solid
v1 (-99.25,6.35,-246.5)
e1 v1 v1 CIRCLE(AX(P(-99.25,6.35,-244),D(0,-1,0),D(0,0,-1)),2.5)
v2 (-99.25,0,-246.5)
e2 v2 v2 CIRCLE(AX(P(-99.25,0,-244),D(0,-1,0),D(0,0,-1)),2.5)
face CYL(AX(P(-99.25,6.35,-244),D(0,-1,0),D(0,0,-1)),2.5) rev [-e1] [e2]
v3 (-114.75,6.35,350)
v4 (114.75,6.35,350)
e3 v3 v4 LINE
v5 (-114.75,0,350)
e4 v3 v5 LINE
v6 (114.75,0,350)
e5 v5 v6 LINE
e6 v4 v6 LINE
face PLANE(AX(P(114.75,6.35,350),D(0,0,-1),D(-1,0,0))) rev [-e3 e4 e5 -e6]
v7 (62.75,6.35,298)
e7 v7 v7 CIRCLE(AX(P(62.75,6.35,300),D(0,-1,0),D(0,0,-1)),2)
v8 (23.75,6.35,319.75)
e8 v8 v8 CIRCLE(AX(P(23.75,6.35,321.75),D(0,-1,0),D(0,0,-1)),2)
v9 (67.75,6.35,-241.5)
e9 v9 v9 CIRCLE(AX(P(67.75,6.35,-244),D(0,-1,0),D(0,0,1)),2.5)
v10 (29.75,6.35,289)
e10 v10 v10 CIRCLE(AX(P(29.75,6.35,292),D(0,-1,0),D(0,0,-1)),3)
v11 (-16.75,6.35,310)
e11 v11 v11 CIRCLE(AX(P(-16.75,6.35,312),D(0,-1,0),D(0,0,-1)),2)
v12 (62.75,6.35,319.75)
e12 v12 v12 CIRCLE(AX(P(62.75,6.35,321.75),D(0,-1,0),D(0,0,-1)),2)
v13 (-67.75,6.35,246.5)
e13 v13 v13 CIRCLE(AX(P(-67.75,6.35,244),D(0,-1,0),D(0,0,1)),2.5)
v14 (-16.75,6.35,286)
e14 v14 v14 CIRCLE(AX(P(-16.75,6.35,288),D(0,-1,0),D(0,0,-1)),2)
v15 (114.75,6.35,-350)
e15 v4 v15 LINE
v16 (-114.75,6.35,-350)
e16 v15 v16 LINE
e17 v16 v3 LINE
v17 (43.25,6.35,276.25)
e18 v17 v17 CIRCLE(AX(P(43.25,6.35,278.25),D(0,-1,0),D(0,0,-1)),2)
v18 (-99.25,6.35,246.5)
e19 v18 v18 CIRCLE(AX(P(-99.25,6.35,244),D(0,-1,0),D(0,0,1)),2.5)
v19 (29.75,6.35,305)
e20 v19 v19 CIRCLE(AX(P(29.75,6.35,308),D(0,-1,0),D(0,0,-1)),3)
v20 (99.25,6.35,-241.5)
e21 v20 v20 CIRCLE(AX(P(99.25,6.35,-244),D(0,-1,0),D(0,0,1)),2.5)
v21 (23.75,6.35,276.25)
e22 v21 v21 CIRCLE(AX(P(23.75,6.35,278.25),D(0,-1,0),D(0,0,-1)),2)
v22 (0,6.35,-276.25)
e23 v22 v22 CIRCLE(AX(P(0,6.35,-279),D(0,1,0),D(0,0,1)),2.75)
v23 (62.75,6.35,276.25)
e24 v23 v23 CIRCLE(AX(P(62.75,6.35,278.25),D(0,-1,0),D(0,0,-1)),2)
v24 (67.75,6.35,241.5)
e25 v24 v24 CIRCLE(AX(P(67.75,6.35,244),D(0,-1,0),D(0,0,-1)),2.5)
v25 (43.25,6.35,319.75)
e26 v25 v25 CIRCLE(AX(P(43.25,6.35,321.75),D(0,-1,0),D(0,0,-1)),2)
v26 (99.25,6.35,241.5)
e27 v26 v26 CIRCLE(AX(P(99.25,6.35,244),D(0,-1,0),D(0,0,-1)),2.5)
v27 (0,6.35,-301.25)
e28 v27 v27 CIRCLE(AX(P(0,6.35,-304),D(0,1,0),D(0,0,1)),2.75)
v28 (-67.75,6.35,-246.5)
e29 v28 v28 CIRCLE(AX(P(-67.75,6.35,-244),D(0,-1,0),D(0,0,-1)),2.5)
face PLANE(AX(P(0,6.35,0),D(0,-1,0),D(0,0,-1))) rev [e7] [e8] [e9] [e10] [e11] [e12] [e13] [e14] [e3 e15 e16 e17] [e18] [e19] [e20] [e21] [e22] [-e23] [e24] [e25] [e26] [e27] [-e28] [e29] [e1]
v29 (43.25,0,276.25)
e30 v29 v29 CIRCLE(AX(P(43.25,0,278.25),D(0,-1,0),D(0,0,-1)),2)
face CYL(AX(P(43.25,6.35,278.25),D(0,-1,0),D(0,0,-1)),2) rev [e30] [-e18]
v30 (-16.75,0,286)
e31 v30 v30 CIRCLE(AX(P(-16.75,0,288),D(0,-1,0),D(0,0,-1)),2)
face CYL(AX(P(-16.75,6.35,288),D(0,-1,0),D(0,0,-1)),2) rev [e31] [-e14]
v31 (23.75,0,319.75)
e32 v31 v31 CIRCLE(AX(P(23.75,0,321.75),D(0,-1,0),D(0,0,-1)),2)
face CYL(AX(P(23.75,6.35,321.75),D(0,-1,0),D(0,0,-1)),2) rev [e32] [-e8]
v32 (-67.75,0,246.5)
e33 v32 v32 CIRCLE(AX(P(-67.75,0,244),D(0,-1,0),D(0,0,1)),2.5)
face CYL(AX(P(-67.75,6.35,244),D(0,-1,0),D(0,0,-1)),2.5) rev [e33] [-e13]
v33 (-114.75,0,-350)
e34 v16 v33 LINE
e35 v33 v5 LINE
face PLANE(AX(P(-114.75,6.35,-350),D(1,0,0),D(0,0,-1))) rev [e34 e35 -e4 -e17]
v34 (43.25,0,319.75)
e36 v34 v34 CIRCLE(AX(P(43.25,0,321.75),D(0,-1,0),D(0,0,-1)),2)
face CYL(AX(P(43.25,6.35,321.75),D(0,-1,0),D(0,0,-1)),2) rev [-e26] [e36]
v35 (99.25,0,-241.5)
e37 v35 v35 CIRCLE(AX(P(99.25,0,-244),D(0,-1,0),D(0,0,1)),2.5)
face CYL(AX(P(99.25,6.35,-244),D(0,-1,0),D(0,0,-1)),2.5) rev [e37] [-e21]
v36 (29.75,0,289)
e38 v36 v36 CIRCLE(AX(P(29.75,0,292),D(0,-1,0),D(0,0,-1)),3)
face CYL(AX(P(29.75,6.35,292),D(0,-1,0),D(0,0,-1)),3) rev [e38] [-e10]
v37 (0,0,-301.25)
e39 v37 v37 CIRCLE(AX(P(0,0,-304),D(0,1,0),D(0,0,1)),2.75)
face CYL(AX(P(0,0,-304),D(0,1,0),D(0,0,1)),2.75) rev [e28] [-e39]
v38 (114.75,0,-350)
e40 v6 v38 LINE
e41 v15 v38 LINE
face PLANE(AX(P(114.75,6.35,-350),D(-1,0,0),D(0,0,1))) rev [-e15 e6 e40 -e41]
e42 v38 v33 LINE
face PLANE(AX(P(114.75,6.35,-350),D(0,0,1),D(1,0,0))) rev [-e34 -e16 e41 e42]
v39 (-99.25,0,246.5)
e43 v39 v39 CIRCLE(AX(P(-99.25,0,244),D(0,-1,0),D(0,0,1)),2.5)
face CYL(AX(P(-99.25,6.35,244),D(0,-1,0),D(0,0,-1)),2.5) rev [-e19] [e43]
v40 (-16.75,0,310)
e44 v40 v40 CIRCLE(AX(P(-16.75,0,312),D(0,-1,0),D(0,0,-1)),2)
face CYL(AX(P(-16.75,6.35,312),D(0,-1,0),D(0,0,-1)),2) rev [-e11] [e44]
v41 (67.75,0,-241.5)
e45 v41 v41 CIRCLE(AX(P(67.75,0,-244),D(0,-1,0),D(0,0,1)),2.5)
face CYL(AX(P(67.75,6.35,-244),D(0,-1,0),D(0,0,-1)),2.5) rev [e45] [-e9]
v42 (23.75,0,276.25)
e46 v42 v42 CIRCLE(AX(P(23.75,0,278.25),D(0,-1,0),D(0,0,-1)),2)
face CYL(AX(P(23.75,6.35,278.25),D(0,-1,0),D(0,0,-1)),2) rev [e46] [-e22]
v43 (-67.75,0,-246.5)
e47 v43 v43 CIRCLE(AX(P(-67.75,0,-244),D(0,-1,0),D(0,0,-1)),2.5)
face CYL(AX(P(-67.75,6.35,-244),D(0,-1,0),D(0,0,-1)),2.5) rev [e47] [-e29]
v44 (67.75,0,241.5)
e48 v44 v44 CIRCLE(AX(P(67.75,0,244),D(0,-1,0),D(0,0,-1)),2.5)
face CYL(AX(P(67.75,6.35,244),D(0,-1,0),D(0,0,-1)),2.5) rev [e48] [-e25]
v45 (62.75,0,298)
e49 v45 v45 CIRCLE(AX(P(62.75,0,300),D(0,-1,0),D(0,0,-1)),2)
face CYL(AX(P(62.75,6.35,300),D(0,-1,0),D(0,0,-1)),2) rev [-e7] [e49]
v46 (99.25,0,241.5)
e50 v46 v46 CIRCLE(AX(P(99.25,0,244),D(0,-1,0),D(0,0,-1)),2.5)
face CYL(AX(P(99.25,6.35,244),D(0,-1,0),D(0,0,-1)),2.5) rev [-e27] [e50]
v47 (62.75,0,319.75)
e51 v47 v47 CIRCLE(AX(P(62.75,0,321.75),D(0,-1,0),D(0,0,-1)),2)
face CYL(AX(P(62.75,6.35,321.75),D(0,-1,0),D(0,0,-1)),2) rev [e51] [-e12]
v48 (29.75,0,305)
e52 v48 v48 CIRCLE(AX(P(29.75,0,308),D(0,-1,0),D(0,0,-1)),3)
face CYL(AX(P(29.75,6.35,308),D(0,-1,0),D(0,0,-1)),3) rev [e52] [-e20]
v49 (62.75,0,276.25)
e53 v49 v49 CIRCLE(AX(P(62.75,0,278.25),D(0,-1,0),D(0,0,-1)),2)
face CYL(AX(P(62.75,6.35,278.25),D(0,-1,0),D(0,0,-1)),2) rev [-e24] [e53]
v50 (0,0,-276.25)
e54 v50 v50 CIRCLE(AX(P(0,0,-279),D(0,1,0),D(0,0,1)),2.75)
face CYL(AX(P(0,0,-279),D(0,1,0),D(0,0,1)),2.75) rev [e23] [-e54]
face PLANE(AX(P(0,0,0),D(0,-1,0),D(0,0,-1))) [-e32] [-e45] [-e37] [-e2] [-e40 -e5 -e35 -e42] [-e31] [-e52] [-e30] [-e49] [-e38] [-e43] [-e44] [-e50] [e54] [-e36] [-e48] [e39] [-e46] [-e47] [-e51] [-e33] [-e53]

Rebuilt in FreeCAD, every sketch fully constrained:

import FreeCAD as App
import Part
import Sketcher
Q = App.Units.Quantity

doc = App.newDocument("Part")
params = doc.addObject("Spreadsheet::Sheet", "Params")
for row, (alias, value) in enumerate([
    ("sketch1_height", "700 mm"),
    ("sketch1_width", "229.5 mm"),
    ("pad1_length", "6.35 mm"),
    ("sketch2_diameter", "4 mm"),
    ("sketch2_diameter2", "6 mm"),
    ("sketch2_diameter3", "5 mm"),
    ("sketch3_diameter", "5.5 mm"),
], start=1):
    params.set(f"A{row}", alias)
    params.set(f"B{row}", "=" + value)
    params.setAlias(f"B{row}", alias)

body = doc.addObject("PartDesign::Body", "Body")

# Sketch on XZ plane
sketch1 = body.newObject("Sketcher::SketchObject", "Sketch")
sketch1.AttachmentSupport = (doc.getObject("XZ_Plane"), [""])
sketch1.MapMode = "FlatFace"
sketch1.addGeometry([
    Part.LineSegment(App.Vector(-114.75, -350, 0), App.Vector(-114.75, 350, 0)),
    Part.LineSegment(App.Vector(-114.75, 350, 0), App.Vector(114.75, 350, 0)),
    Part.LineSegment(App.Vector(114.75, 350, 0), App.Vector(114.75, -350, 0)),
    Part.LineSegment(App.Vector(114.75, -350, 0), App.Vector(-114.75, -350, 0)),
], False)
sketch1.addConstraint([
    Sketcher.Constraint("Coincident", 0, 2, 1, 1),
    Sketcher.Constraint("Coincident", 1, 2, 2, 1),
    Sketcher.Constraint("Coincident", 2, 2, 3, 1),
    Sketcher.Constraint("Coincident", 3, 2, 0, 1),
    Sketcher.Constraint("Vertical", 0),
    Sketcher.Constraint("Horizontal", 1),
    Sketcher.Constraint("Vertical", 2),
    Sketcher.Constraint("Horizontal", 3),
    Sketcher.Constraint("Symmetric", 0, 2, 2, 2, -1, 1),
    Sketcher.Constraint("DistanceY", 0, 1, 0, 2, Q("700 mm")),
    Sketcher.Constraint("DistanceX", 1, 1, 1, 2, Q("229.5 mm")),
])
sketch1.setExpression("Constraints[9]", "Params.sketch1_height")
sketch1.setExpression("Constraints[10]", "Params.sketch1_width")
pad1 = body.newObject("PartDesign::Pad", "Pad")
pad1.Profile = sketch1
pad1.setExpression("Length", "Params.pad1_length")
pad1.Reversed = True

# Sketch on XZ plane
sketch2 = body.newObject("Sketcher::SketchObject", "Sketch001")
sketch2.AttachmentSupport = (doc.getObject("XZ_Plane"), [""])
sketch2.MapMode = "FlatFace"
sketch2.addGeometry([
    Part.Circle(App.Vector(-16.75, 312, 0), App.Vector(0, 0, 1), 2),  # 0
    Part.Circle(App.Vector(-16.75, 288, 0), App.Vector(0, 0, 1), 2),  # 1
    Part.Circle(App.Vector(23.75, 321.75, 0), App.Vector(0, 0, 1), 2),  # 2
    Part.Circle(App.Vector(23.75, 278.25, 0), App.Vector(0, 0, 1), 2),  # 3
    Part.Circle(App.Vector(43.25, 278.25, 0), App.Vector(0, 0, 1), 2),  # 4
    Part.Circle(App.Vector(43.25, 321.75, 0), App.Vector(0, 0, 1), 2),  # 5
    Part.Circle(App.Vector(62.75, 321.75, 0), App.Vector(0, 0, 1), 2),  # 6
    Part.Circle(App.Vector(62.75, 300, 0), App.Vector(0, 0, 1), 2),  # 7
    Part.Circle(App.Vector(62.75, 278.25, 0), App.Vector(0, 0, 1), 2),  # 8
    Part.Circle(App.Vector(29.75, 292, 0), App.Vector(0, 0, 1), 3),  # 9
    Part.Circle(App.Vector(29.75, 308, 0), App.Vector(0, 0, 1), 3),  # 10
    Part.Circle(App.Vector(67.75, 244, 0), App.Vector(0, 0, 1), 2.5),  # 11
    Part.Circle(App.Vector(99.25, 244, 0), App.Vector(0, 0, 1), 2.5),  # 12
    Part.Circle(App.Vector(67.75, -244, 0), App.Vector(0, 0, 1), 2.5),  # 13
    Part.Circle(App.Vector(99.25, -244, 0), App.Vector(0, 0, 1), 2.5),  # 14
    Part.Circle(App.Vector(-99.25, -244, 0), App.Vector(0, 0, 1), 2.5),  # 15
    Part.Circle(App.Vector(-67.75, -244, 0), App.Vector(0, 0, 1), 2.5),  # 16
    Part.Circle(App.Vector(-99.25, 244, 0), App.Vector(0, 0, 1), 2.5),  # 17
    Part.Circle(App.Vector(-67.75, 244, 0), App.Vector(0, 0, 1), 2.5),  # 18
], False)
sketch2.addConstraint([
    Sketcher.Constraint("Equal", 0, 1),
    Sketcher.Constraint("Equal", 1, 2),
    Sketcher.Constraint("Equal", 2, 3),
    Sketcher.Constraint("Equal", 3, 4),
    Sketcher.Constraint("Equal", 4, 5),
    Sketcher.Constraint("Equal", 5, 6),
    Sketcher.Constraint("Equal", 6, 7),
    Sketcher.Constraint("Equal", 7, 8),
    Sketcher.Constraint("Equal", 9, 10),
    Sketcher.Constraint("Equal", 11, 12),
    Sketcher.Constraint("Equal", 12, 13),
    Sketcher.Constraint("Equal", 13, 14),
    Sketcher.Constraint("Equal", 14, 15),
    Sketcher.Constraint("Equal", 15, 16),
    Sketcher.Constraint("Equal", 16, 17),
    Sketcher.Constraint("Equal", 17, 18),
    Sketcher.Constraint("Symmetric", 12, 3, 15, 3, -1, 1),
    Sketcher.Constraint("Symmetric", 11, 3, 16, 3, -1, 1),
    Sketcher.Constraint("Symmetric", 14, 3, 17, 3, -1, 1),
    Sketcher.Constraint("Symmetric", 13, 3, 18, 3, -1, 1),
    Sketcher.Constraint("Symmetric", 14, 3, 15, 3, -2),
    Sketcher.Constraint("Symmetric", 13, 3, 16, 3, -2),
    Sketcher.Constraint("Horizontal", 3, 3, 4, 3),
    Sketcher.Constraint("Horizontal", 2, 3, 5, 3),
    Sketcher.Constraint("Horizontal", 5, 3, 6, 3),
    Sketcher.Constraint("Horizontal", 4, 3, 8, 3),
    Sketcher.Constraint("Horizontal", 11, 3, 12, 3),
    Sketcher.Constraint("Vertical", 0, 3, 1, 3),
    Sketcher.Constraint("Vertical", 2, 3, 3, 3),
    Sketcher.Constraint("Vertical", 4, 3, 5, 3),
    Sketcher.Constraint("Vertical", 6, 3, 7, 3),
    Sketcher.Constraint("Vertical", 7, 3, 8, 3),
    Sketcher.Constraint("Vertical", 9, 3, 10, 3),
    Sketcher.Constraint("Diameter", 0, Q("4 mm")),
    Sketcher.Constraint("Diameter", 9, Q("6 mm")),
    Sketcher.Constraint("Diameter", 11, Q("5 mm")),
    Sketcher.Constraint("DistanceY", -1, 1, 0, 3, Q("312 mm")),
    Sketcher.Constraint("DistanceY", -1, 1, 1, 3, Q("288 mm")),
    Sketcher.Constraint("DistanceY", -1, 1, 7, 3, Q("300 mm")),
    Sketcher.Constraint("DistanceY", -1, 1, 9, 3, Q("292 mm")),
    Sketcher.Constraint("DistanceY", -1, 1, 10, 3, Q("308 mm")),
    Sketcher.Constraint("DistanceY", -1, 1, 11, 3, Q("244 mm")),
    Sketcher.Constraint("DistanceX", 1, 3, 4, 3, Q("60 mm")),
    Sketcher.Constraint("DistanceX", 2, 3, 6, 3, Q("39 mm")),
    Sketcher.Constraint("DistanceX", 3, 3, 9, 3, Q("6 mm")),
    Sketcher.Constraint("DistanceX", 8, 3, 11, 3, Q("5 mm")),
    Sketcher.Constraint("DistanceX", 4, 3, 12, 3, Q("56 mm")),
    Sketcher.Constraint("DistanceX", 15, 3, 13, 3, Q("167 mm")),
    Sketcher.Constraint("DistanceX", 0, 3, 2, 3, Q("40.5 mm")),
    Sketcher.Constraint("DistanceY", 3, 3, 2, 3, Q("43.5 mm")),
    Sketcher.Constraint("DistanceY", -1, 1, 2, 3, Q("321.75 mm")),
])
sketch2.setExpression("Constraints[33]", "Params.sketch2_diameter")
sketch2.setExpression("Constraints[34]", "Params.sketch2_diameter2")
sketch2.setExpression("Constraints[35]", "Params.sketch2_diameter3")
pocket1 = body.newObject("PartDesign::Pocket", "Pocket")
pocket1.Profile = sketch2
pocket1.Type = "ThroughAll"

# Sketch on XZ plane
sketch3 = body.newObject("Sketcher::SketchObject", "Sketch002")
sketch3.AttachmentSupport = (doc.getObject("XZ_Plane"), [""])
sketch3.MapMode = "FlatFace"
sketch3.AttachmentOffset = App.Placement(App.Vector(0, 0, -6.35), App.Rotation())
sketch3.addGeometry([
    Part.Circle(App.Vector(0, -279, 0), App.Vector(0, 0, 1), 2.75),
    Part.Circle(App.Vector(0, -304, 0), App.Vector(0, 0, 1), 2.75),
], False)
sketch3.addConstraint([
    Sketcher.Constraint("Equal", 0, 1),
    Sketcher.Constraint("PointOnObject", 0, 3, -2),
    Sketcher.Constraint("PointOnObject", 1, 3, -2),
    Sketcher.Constraint("Diameter", 0, Q("5.5 mm")),
    Sketcher.Constraint("DistanceY", 0, 3, -1, 1, Q("279 mm")),
    Sketcher.Constraint("DistanceY", 1, 3, -1, 1, Q("304 mm")),
])
sketch3.setExpression("Constraints[3]", "Params.sketch3_diameter")
pocket2 = body.newObject("PartDesign::Pocket", "Pocket001")
pocket2.Profile = sketch3
pocket2.Type = "ThroughAll"
pocket2.Reversed = True

doc.recompute()
